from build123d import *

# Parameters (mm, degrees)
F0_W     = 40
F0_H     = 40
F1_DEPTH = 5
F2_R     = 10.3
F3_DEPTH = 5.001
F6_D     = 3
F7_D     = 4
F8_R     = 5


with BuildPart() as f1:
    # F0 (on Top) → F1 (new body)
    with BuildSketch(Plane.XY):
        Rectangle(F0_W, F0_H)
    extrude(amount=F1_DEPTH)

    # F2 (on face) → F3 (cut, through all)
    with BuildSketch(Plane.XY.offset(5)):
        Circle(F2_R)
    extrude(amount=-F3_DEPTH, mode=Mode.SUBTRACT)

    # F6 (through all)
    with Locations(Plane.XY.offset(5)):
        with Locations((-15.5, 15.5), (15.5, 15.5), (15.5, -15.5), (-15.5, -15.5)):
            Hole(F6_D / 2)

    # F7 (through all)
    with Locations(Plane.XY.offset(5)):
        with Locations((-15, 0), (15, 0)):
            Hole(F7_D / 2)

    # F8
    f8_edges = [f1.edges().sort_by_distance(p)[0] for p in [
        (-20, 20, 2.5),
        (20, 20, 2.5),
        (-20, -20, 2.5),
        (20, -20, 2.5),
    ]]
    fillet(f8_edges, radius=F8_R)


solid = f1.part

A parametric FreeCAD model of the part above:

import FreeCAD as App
import Part
import Sketcher
Q = App.Units.Quantity


def edges_at(feature, points):
    """Names of the edges that pass closest to the given points."""
    edges = feature.Shape.Edges
    near = lambda p: min(range(len(edges)), key=lambda i: edges[i].distToShape(Part.Vertex(*p))[0])
    return sorted({f"Edge{near(p) + 1}" for p in points})


def add_polygon(sketch, points):
    """Adds a closed chain of lines whose ends are joined by coincident constraints."""
    first, n = sketch.GeometryCount, len(points)
    for a, b in zip(points, points[1:] + points[:1]):
        sketch.addGeometry(Part.LineSegment(App.Vector(*a, 0), App.Vector(*b, 0)), False)
    for i in range(n):
        sketch.addConstraint(Sketcher.Constraint("Coincident", first + i, 2, first + (i + 1) % n, 1))

doc = App.newDocument("Part")
body = doc.addObject("PartDesign::Body", "Body")

sketch1 = body.newObject("Sketcher::SketchObject", "Sketch")
sketch1.AttachmentSupport = (doc.getObject("XY_Plane"), [""])
sketch1.MapMode = "FlatFace"
add_polygon(sketch1, [(-20, 20), (-20, -20), (20, -20), (20, 20)])
sketch1.addConstraint([
    Sketcher.Constraint("Vertical", 0),
    Sketcher.Constraint("Horizontal", 1),
    Sketcher.Constraint("Vertical", 2),
    Sketcher.Constraint("Horizontal", 3),
    Sketcher.Constraint("Symmetric", 0, 2, 2, 2, -1, 1),
    Sketcher.Constraint("Equal", 3, 0),
    Sketcher.Constraint("DistanceX", 1, 1, 1, 2, Q("40 mm")),
])
pad1 = body.newObject("PartDesign::Pad", "Pad")
pad1.Profile = sketch1
pad1.Length = 5

sketch2 = body.newObject("Sketcher::SketchObject", "Sketch001")
sketch2.AttachmentSupport = (doc.getObject("XY_Plane"), [""])
sketch2.MapMode = "FlatFace"
sketch2.AttachmentOffset = App.Placement(App.Vector(0, 0, 5), App.Rotation())
sketch2.addGeometry(Part.Circle(App.Vector(0, 0, 0), App.Vector(0, 0, 1), 10.3), False)
sketch2.addConstraint([
    Sketcher.Constraint("Coincident", 0, 3, -1, 1),
    Sketcher.Constraint("Diameter", 0, Q("20.6 mm")),
])
pocket1 = body.newObject("PartDesign::Pocket", "Pocket")
pocket1.Profile = sketch2
pocket1.Type = "ThroughAll"

sketch3 = body.newObject("Sketcher::SketchObject", "Sketch002")
sketch3.AttachmentSupport = (doc.getObject("XY_Plane"), [""])
sketch3.MapMode = "FlatFace"
sketch3.AttachmentOffset = App.Placement(App.Vector(0, 0, 5), App.Rotation())
sketch3.addGeometry([
    Part.Circle(App.Vector(-15.5, 15.5, 0), App.Vector(0, 0, 1), 1.5),
    Part.Circle(App.Vector(15.5, 15.5, 0), App.Vector(0, 0, 1), 1.5),
    Part.Circle(App.Vector(15.5, -15.5, 0), App.Vector(0, 0, 1), 1.5),
    Part.Circle(App.Vector(-15.5, -15.5, 0), App.Vector(0, 0, 1), 1.5),
], False)
sketch3.addConstraint([
    Sketcher.Constraint("Equal", 0, 1),
    Sketcher.Constraint("Equal", 1, 2),
    Sketcher.Constraint("Equal", 2, 3),
    Sketcher.Constraint("Symmetric", 0, 3, 2, 3, -1, 1),
    Sketcher.Constraint("Symmetric", 1, 3, 3, 3, -1, 1),
    Sketcher.Constraint("Symmetric", 0, 3, 1, 3, -2),
    Sketcher.Constraint("Diameter", 0, Q("3 mm")),
    Sketcher.Constraint("DistanceX", 0, 3, 1, 3, Q("31 mm")),
    Sketcher.Constraint("DistanceY", 2, 3, 1, 3, Q("31 mm")),
])
doc.recompute()
hole = body.newObject("PartDesign::Hole", "Hole")
hole.Profile = sketch3
hole.ThreadType = "None"
hole.Diameter = 3
hole.DepthType = "ThroughAll"

sketch4 = body.newObject("Sketcher::SketchObject", "Sketch003")
sketch4.AttachmentSupport = (doc.getObject("XY_Plane"), [""])
sketch4.MapMode = "FlatFace"
sketch4.AttachmentOffset = App.Placement(App.Vector(0, 0, 5), App.Rotation())
sketch4.addGeometry([
    Part.Circle(App.Vector(-15, 0, 0), App.Vector(0, 0, 1), 2),
    Part.Circle(App.Vector(15, 0, 0), App.Vector(0, 0, 1), 2),
], False)
sketch4.addConstraint([
    Sketcher.Constraint("Equal", 0, 1),
    Sketcher.Constraint("Symmetric", 0, 3, 1, 3, -1, 1),
    Sketcher.Constraint("PointOnObject", 0, 3, -1),
    Sketcher.Constraint("Diameter", 0, Q("4 mm")),
    Sketcher.Constraint("DistanceX", 0, 3, -1, 1, Q("15 mm")),
])
doc.recompute()
hole2 = body.newObject("PartDesign::Hole", "Hole001")
hole2.Profile = sketch4
hole2.ThreadType = "None"
hole2.Diameter = 4
hole2.DepthType = "ThroughAll"
doc.recompute()

fillet = body.newObject("PartDesign::Fillet", "Fillet")
fillet.Base = (hole2, edges_at(hole2, [
    (-20, 20, 2.5),
    (20, 20, 2.5),
    (-20, -20, 2.5),
    (20, -20, 2.5),
]))
fillet.Radius = 5

doc.recompute()
